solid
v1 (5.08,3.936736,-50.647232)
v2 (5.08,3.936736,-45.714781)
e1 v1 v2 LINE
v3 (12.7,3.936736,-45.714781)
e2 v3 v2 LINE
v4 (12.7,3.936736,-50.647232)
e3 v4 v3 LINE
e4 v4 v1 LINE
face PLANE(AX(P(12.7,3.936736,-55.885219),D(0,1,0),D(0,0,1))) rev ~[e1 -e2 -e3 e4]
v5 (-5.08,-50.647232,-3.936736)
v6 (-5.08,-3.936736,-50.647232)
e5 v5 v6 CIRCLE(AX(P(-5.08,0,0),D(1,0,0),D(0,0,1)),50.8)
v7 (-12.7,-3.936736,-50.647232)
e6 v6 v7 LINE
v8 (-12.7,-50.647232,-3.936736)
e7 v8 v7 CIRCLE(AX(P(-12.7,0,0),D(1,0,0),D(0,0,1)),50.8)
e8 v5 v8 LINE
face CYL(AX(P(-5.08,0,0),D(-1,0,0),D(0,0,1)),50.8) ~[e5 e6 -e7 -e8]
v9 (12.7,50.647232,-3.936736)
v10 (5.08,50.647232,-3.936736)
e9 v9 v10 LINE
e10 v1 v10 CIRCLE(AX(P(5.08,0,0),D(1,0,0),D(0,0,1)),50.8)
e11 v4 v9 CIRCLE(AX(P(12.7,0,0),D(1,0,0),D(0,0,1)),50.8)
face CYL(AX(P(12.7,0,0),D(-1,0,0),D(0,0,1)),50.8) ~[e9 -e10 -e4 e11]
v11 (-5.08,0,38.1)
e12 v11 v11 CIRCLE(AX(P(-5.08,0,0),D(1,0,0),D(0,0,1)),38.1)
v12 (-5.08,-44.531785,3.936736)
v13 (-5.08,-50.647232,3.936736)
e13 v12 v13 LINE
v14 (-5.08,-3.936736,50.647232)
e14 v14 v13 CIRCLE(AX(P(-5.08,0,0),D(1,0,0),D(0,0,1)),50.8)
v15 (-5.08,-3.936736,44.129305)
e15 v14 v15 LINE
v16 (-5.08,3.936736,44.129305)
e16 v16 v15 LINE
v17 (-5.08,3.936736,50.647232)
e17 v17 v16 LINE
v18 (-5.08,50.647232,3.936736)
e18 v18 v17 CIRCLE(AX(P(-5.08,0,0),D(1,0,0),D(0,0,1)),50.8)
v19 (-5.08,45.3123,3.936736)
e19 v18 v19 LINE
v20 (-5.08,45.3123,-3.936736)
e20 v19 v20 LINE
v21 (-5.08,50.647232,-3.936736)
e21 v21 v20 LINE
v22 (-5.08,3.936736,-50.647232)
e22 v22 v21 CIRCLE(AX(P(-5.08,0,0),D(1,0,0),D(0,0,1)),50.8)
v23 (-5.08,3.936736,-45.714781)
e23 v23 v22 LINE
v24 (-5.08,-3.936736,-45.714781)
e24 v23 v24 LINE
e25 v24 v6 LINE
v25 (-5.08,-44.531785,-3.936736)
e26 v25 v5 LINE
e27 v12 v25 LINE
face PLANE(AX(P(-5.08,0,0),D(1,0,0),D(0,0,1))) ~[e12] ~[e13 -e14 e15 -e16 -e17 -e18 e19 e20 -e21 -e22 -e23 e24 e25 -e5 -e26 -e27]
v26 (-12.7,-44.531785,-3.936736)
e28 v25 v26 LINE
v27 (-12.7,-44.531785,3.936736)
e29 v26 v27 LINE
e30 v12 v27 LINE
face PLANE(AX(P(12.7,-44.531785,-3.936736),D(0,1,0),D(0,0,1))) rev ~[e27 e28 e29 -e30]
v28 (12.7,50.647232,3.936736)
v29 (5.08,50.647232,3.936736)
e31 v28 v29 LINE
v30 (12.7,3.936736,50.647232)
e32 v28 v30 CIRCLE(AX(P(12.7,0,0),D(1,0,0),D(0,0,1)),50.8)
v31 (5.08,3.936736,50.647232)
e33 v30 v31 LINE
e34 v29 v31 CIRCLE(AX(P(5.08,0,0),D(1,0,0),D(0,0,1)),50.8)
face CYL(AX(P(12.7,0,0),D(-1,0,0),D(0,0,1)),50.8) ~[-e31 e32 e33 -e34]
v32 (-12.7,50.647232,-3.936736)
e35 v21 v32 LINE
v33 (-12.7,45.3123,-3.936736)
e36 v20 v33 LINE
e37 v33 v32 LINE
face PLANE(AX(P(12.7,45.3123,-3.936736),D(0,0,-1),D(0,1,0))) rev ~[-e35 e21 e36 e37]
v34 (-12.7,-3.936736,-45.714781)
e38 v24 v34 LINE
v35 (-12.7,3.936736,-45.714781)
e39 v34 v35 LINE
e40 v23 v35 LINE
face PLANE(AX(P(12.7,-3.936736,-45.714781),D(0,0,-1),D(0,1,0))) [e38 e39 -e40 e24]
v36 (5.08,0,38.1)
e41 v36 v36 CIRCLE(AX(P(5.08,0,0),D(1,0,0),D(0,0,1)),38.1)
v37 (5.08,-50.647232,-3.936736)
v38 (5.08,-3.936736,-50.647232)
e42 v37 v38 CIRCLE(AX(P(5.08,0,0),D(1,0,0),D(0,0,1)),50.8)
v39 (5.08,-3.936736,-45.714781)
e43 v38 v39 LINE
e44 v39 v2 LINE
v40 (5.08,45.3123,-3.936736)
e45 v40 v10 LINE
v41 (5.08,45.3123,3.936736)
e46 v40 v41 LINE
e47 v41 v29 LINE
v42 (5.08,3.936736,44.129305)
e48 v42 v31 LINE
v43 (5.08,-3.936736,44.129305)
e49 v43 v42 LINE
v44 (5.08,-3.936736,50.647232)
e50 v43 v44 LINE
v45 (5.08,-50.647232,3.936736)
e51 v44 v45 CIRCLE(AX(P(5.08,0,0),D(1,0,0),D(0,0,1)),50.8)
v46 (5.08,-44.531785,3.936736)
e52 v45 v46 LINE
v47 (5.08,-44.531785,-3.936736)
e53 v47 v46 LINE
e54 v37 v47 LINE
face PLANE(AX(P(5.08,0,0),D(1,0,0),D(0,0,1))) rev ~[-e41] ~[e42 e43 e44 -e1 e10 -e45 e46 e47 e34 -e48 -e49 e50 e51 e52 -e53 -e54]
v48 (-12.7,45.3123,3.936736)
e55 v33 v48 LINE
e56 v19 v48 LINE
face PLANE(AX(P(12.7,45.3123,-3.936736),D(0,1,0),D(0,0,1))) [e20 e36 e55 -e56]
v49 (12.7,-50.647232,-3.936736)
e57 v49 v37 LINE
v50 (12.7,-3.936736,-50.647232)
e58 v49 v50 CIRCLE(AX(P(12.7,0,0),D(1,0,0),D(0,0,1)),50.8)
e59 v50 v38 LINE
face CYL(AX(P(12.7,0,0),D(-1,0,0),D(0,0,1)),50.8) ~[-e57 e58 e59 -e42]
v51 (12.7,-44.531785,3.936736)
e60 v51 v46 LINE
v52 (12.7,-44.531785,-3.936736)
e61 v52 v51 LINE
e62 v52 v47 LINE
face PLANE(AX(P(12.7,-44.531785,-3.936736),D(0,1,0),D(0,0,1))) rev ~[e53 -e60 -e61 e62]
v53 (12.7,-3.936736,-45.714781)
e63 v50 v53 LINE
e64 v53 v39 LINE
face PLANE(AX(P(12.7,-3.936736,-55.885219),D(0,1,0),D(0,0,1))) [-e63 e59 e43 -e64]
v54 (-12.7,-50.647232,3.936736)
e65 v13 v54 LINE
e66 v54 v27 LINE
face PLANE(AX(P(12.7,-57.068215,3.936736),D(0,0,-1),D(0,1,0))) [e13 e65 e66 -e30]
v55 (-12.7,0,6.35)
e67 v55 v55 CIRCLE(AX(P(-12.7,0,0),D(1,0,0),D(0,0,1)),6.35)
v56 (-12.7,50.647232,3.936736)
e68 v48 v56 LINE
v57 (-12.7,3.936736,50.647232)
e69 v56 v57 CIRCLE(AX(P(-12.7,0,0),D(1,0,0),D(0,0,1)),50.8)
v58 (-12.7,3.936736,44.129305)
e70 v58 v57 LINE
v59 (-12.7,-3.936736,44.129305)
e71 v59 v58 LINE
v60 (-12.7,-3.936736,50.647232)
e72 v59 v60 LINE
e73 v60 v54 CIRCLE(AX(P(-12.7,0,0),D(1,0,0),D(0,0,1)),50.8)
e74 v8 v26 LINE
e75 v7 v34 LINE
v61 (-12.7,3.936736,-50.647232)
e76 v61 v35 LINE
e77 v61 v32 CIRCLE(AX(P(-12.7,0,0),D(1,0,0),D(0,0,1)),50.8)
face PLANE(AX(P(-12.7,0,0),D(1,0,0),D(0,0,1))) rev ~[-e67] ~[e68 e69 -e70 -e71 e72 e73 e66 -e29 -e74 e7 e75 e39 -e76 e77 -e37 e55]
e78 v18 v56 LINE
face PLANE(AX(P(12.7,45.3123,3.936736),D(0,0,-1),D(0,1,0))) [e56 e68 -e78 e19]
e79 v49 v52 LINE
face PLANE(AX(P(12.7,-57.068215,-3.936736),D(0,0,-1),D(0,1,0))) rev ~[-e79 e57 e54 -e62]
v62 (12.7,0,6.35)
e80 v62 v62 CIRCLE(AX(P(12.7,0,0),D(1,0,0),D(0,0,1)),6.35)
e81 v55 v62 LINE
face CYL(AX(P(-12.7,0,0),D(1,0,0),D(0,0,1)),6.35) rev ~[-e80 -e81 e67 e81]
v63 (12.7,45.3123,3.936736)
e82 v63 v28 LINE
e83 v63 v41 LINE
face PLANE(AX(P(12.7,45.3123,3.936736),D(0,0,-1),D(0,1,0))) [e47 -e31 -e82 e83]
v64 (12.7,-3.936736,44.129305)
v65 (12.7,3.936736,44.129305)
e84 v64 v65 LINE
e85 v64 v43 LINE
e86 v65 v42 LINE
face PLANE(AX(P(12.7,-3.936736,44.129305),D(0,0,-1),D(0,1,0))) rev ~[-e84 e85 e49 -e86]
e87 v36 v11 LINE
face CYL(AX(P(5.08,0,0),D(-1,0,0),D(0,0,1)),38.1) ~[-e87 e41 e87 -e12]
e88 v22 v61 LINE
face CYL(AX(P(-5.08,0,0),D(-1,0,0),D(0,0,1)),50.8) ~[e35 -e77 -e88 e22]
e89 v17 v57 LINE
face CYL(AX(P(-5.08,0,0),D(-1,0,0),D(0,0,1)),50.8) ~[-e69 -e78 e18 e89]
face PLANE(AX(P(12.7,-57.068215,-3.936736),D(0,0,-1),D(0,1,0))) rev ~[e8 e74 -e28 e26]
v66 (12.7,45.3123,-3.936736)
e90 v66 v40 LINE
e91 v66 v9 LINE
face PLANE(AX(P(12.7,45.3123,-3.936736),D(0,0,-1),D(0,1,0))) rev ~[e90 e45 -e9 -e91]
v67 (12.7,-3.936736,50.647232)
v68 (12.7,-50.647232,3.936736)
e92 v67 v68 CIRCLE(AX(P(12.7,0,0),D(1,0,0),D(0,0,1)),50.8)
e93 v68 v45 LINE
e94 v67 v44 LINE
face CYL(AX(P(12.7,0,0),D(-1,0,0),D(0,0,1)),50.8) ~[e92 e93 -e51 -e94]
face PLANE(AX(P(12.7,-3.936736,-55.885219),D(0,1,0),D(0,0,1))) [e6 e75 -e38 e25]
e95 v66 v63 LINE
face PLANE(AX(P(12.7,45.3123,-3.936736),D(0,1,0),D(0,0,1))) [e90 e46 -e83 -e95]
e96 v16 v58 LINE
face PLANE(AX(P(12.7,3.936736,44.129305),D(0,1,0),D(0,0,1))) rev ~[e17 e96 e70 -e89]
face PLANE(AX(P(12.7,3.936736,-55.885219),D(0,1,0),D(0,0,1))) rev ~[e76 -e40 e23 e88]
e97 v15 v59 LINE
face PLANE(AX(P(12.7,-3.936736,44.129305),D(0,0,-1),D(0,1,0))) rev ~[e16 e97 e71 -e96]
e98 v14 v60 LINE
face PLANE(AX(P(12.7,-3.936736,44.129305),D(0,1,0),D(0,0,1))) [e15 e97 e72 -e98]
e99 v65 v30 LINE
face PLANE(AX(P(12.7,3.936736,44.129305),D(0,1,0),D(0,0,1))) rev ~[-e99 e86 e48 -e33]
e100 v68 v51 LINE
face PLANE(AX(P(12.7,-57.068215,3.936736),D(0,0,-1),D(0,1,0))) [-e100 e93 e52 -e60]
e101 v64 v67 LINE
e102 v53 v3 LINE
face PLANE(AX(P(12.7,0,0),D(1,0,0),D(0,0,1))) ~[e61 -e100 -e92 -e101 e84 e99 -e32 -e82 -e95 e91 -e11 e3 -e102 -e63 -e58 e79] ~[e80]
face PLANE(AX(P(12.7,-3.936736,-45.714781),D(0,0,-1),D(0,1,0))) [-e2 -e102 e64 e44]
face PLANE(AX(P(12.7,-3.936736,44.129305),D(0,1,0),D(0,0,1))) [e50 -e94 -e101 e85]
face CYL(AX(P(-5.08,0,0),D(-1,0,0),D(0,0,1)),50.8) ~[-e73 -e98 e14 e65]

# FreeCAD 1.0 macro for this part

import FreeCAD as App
import Part
import Sketcher
from FreeCAD import Vector
Q = App.Units.Quantity


def add_polygon(sketch, points):
    """Adds a closed chain of lines whose ends are joined by coincident constraints."""
    first, n = sketch.GeometryCount, len(points)
    for a, b in zip(points, points[1:] + points[:1]):
        sketch.addGeometry(Part.LineSegment(App.Vector(*a, 0), App.Vector(*b, 0)), False)
    for i in range(n):
        sketch.addConstraint(Sketcher.Constraint("Coincident", first + i, 2, first + (i + 1) % n, 1))

doc = App.newDocument("Part")
params = doc.addObject("Spreadsheet::Sheet", "Params")
for row, (alias, value) in enumerate([
    ("sketch1_width", "1 in"),
    ("sketch1_width2", "0.3 in"),
    ("sketch1_height", "0.5 in"),
    ("sketch1_height2", "1.75 in"),
    ("revolution_angle", "360 deg"),
], start=1):
    params.set(f"A{row}", alias)
    params.set(f"B{row}", "=" + value)
    params.setAlias(f"B{row}", alias)

body = doc.addObject("PartDesign::Body", "Body")

sketch1 = body.newObject("Sketcher::SketchObject", "Sketch")
sketch1.AttachmentSupport = (doc.getObject("XZ_Plane"), [""])
sketch1.MapMode = "FlatFace"
add_polygon(sketch1, [(-13, 6), (13, 6), (13, 51), (5, 51), (5, 38), (-5, 38), (-5, 51), (-13, 51)])
sketch1.addConstraint([
    Sketcher.Constraint("Horizontal", 0),
    Sketcher.Constraint("Vertical", 1),
    Sketcher.Constraint("Horizontal", 2),
    Sketcher.Constraint("Vertical", 3),
    Sketcher.Constraint("Horizontal", 4),
    Sketcher.Constraint("Vertical", 5),
    Sketcher.Constraint("Horizontal", 6),
    Sketcher.Constraint("Vertical", 7),
    Sketcher.Constraint("Symmetric", 2, 2, 5, 2, -2),
    Sketcher.Constraint("Equal", 2, 6),
    Sketcher.Constraint("DistanceX", 0, 1, 0, 2, Q("1 in")),
    Sketcher.Constraint("DistanceX", 2, 2, 2, 1, Q("0.3 in")),
    Sketcher.Constraint("DistanceY", 3, 2, 3, 1, Q("0.5 in")),
    Sketcher.Constraint("DistanceY", -1, 1, 1, 2, Q("2 in")),
    Sketcher.Constraint("DistanceY", 1, 1, 1, 2, Q("1.75 in")),
])
sketch1.setExpression("Constraints[18]", "Params.sketch1_width")
sketch1.setExpression("Constraints[19]", "Params.sketch1_width2")
sketch1.setExpression("Constraints[20]", "Params.sketch1_height")
sketch1.setExpression("Constraints[22]", "Params.sketch1_height2")
revolution = body.newObject("PartDesign::Revolution", "Revolution")
revolution.Profile = sketch1
revolution.ReferenceAxis = (sketch1, ["H_Axis"])
revolution.setExpression("Angle", "Params.revolution_angle")

sketch2 = body.newObject("Sketcher::SketchObject", "Sketch001")
sketch2.AttachmentSupport = (doc.getObject("YZ_Plane"), [""])
sketch2.MapMode = "FlatFace"
sketch2.AttachmentOffset = App.Placement(Vector(0, 0, 0.5 * 25.4), App.Rotation())
add_polygon(sketch2, [(-4, 57), (-4, 44), (4, 44), (4, 57)])
add_polygon(sketch2, [(45, 4), (45, -4), (56, -4), (56, 4)])
add_polygon(sketch2, [(-4, -46), (-4, -56), (4, -56), (4, -46)])
add_polygon(sketch2, [(-57, 4), (-57, -4), (-45, -4), (-45, 4)])
sketch2.addConstraint([
    Sketcher.Constraint("Vertical", 0),
    Sketcher.Constraint("Horizontal", 1),
    Sketcher.Constraint("Vertical", 2),
    Sketcher.Constraint("Horizontal", 3),
    Sketcher.Constraint("Vertical", 4),
    Sketcher.Constraint("Horizontal", 5),
    Sketcher.Constraint("Vertical", 6),
    Sketcher.Constraint("Horizontal", 7),
    Sketcher.Constraint("Vertical", 8),
    Sketcher.Constraint("Horizontal", 9),
    Sketcher.Constraint("Vertical", 10),
    Sketcher.Constraint("Horizontal", 11),
    Sketcher.Constraint("Vertical", 12),
    Sketcher.Constraint("Horizontal", 13),
    Sketcher.Constraint("Vertical", 14),
    Sketcher.Constraint("Horizontal", 15),
    Sketcher.Constraint("Horizontal", 5, 2, 12, 2),
    Sketcher.Constraint("Horizontal", 7, 2, 14, 2),
    Sketcher.Constraint("Vertical", 3, 2, 8, 2),
    Sketcher.Constraint("Vertical", 2, 2, 9, 2),
    Sketcher.Constraint("Equal", 11, 4),
    Sketcher.Constraint("DistanceX", 5, 1, 5, 2, Q("10.9754 mm")),
    Sketcher.Constraint("DistanceX", 1, 1, 1, 2, Q("7.873472 mm")),
    Sketcher.Constraint("DistanceX", 13, 1, 13, 2, Q("12.53643 mm")),
    Sketcher.Constraint("DistanceY", 0, 2, 0, 1, Q("13.34139 mm")),
    Sketcher.Constraint("DistanceX", -1, 1, 4, 2, Q("45.3123 mm")),
    Sketcher.Constraint("DistanceY", 8, 2, 8, 1, Q("10.170438 mm")),
    Sketcher.Constraint("DistanceY", 8, 2, -1, 1, Q("55.885219 mm")),
    Sketcher.Constraint("DistanceY", 4, 2, 1, 2, Q("48.066041 mm")),
    Sketcher.Constraint("DistanceX", 12, 2, 11, 2, Q("53.131479 mm")),
    Sketcher.Constraint("DistanceX", 0, 2, -1, 1, Q("3.936736 mm")),
    Sketcher.Constraint("DistanceY", -1, 1, 0, 2, Q("44.129305 mm")),
])
pocket1 = body.newObject("PartDesign::Pocket", "Pocket")
pocket1.Profile = sketch2
pocket1.Type = "ThroughAll"

doc.recompute()
